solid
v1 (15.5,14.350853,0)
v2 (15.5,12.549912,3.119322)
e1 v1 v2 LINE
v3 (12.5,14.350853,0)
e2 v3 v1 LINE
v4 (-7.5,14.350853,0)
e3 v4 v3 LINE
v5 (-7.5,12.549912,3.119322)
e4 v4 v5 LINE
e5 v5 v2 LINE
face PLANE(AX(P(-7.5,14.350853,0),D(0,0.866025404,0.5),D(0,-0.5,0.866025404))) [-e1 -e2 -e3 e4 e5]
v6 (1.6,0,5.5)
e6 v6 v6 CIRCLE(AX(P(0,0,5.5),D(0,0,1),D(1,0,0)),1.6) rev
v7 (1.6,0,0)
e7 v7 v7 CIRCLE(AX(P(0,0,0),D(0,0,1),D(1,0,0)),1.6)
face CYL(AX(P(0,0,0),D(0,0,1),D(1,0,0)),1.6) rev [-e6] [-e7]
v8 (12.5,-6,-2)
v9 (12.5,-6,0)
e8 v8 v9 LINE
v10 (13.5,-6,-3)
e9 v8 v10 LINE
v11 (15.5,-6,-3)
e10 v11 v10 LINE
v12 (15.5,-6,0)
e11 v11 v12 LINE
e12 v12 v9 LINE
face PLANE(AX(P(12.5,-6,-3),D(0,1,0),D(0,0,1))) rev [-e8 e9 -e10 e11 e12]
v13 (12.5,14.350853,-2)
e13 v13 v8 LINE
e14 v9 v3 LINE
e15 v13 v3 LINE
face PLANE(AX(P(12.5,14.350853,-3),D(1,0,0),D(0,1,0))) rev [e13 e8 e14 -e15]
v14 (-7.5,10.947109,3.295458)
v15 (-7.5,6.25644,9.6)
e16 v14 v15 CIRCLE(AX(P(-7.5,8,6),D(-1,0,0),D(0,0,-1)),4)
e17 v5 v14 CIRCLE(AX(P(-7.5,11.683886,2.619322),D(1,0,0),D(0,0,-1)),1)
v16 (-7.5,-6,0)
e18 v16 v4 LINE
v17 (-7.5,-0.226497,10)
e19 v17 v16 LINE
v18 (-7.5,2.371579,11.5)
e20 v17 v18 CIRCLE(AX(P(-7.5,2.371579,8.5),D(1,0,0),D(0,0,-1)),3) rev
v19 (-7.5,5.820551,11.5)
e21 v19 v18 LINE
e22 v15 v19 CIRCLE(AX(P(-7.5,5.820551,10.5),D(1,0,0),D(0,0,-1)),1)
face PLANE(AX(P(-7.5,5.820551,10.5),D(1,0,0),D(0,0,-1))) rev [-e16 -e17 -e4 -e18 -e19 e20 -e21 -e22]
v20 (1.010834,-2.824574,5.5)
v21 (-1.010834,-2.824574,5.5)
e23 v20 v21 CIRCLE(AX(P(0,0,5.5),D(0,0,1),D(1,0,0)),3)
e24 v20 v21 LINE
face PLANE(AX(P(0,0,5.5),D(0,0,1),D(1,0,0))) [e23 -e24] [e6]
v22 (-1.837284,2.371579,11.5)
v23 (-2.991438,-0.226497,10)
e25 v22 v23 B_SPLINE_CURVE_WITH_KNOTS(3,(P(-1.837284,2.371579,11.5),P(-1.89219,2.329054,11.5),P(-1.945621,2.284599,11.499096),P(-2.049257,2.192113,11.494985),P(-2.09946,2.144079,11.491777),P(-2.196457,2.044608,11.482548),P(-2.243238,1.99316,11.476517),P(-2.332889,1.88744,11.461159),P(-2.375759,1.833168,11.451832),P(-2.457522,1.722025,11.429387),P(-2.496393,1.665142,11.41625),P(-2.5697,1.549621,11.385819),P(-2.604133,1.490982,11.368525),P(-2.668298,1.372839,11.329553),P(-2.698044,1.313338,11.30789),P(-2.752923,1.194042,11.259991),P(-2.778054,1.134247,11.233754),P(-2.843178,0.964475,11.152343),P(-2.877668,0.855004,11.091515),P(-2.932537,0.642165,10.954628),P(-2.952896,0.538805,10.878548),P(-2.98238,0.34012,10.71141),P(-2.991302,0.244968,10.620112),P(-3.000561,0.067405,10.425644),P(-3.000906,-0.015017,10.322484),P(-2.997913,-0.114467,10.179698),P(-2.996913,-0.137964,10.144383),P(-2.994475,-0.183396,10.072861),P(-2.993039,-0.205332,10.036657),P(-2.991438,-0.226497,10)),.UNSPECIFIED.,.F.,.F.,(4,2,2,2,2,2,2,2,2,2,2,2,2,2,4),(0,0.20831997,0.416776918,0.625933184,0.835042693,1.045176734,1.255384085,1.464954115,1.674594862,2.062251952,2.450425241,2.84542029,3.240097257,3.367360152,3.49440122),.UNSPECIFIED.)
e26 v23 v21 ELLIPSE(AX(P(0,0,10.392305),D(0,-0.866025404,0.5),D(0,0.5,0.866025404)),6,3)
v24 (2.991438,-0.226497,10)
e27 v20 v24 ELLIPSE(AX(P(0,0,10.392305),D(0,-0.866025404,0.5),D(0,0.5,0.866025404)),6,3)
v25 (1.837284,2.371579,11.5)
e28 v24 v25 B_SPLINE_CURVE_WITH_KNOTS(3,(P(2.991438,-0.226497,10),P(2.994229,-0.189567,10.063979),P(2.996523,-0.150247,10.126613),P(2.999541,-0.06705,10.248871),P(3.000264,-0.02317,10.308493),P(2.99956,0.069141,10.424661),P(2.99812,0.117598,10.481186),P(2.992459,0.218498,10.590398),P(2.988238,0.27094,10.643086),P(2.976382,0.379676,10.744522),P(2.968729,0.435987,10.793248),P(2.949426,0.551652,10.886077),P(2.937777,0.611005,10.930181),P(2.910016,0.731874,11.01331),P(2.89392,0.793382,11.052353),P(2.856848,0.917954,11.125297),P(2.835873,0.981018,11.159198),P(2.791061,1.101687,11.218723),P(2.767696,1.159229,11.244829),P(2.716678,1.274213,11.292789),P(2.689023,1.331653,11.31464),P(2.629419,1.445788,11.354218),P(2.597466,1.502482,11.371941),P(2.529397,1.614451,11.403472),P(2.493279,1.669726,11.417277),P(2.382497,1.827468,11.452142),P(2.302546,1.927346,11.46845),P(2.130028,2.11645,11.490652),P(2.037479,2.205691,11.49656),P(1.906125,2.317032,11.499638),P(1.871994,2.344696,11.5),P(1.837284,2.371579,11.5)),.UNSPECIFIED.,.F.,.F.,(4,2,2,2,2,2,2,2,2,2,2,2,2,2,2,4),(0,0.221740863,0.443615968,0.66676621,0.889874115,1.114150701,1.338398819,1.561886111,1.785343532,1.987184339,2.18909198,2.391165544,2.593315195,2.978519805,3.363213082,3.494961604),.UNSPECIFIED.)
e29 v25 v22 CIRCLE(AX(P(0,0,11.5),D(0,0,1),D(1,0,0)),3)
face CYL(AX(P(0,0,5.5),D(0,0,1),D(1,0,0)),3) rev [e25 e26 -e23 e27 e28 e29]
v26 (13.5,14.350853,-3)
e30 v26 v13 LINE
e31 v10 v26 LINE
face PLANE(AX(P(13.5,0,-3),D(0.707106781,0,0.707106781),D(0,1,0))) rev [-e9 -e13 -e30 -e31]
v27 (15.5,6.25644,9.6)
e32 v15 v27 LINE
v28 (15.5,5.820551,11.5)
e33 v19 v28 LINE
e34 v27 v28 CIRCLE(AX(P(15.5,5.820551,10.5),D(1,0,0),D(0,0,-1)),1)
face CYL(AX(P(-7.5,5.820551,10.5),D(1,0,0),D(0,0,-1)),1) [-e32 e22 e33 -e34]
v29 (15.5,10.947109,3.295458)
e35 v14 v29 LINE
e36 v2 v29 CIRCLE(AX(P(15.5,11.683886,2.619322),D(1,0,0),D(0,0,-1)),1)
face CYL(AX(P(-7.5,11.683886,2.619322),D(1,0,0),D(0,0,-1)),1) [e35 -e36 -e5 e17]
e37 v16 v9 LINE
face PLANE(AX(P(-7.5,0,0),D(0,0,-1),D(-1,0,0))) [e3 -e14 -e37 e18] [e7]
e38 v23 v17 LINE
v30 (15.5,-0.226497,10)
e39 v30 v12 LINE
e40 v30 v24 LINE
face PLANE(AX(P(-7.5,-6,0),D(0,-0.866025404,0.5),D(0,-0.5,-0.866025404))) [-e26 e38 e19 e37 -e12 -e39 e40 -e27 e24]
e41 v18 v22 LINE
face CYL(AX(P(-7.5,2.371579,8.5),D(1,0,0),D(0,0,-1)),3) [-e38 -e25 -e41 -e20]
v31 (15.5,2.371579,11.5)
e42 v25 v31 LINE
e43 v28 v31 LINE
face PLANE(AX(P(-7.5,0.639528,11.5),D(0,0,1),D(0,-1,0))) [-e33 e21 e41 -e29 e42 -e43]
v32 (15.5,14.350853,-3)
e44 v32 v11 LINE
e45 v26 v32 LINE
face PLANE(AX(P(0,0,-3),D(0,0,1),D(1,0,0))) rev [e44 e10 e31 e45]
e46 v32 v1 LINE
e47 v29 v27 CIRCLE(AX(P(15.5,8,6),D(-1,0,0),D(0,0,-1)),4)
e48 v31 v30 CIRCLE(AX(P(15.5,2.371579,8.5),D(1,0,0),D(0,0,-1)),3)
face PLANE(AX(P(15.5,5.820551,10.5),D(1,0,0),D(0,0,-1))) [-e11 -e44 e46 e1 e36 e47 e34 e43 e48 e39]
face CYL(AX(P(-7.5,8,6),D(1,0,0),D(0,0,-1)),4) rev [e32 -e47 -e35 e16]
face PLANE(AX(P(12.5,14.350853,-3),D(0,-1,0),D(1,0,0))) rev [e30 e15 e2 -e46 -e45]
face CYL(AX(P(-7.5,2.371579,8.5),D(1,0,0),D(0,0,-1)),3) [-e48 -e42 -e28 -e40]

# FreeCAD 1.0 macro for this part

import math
import FreeCAD as App
import Part
import Sketcher
Q = App.Units.Quantity


def edges_at(feature, points):
    """Names of the edges that pass closest to the given points."""
    edges = feature.Shape.Edges
    near = lambda p: min(range(len(edges)), key=lambda i: edges[i].distToShape(Part.Vertex(*p))[0])
    return sorted({f"Edge{near(p) + 1}" for p in points})


def add_polygon(sketch, points):
    """Adds a closed chain of lines whose ends are joined by coincident constraints."""
    first, n = sketch.GeometryCount, len(points)
    for a, b in zip(points, points[1:] + points[:1]):
        sketch.addGeometry(Part.LineSegment(App.Vector(*a, 0), App.Vector(*b, 0)), False)
    for i in range(n):
        sketch.addConstraint(Sketcher.Constraint("Coincident", first + i, 2, first + (i + 1) % n, 1))

doc = App.newDocument("Part")
body = doc.addObject("PartDesign::Body", "Body")

# Sketch on YZ plane
sketch1 = doc.addObject("Sketcher::SketchObject", "Sketch")
body.addObject(sketch1)
sketch1.AttachmentSupport = (doc.YZ_Plane, [""])
sketch1.MapMode = "FlatFace"
sketch1.addGeometry([
    Part.LineSegment(App.Vector(14.4, 0, 0), App.Vector(12.5, 3.1, 0)),  # 0
    Part.ArcOfCircle(Part.Circle(App.Vector(11.7, 2.6, 0), App.Vector(0, 0, 1), 1), math.radians(30), math.radians(137)),  # 1
    Part.ArcOfCircle(Part.Circle(App.Vector(8, 6, 0), App.Vector(0, 0, 1), 4), math.radians(116), math.radians(317)),  # 2
    Part.ArcOfCircle(Part.Circle(App.Vector(5.8, 10.5, 0), App.Vector(0, 0, 1), 1), math.radians(-64), math.radians(90)),  # 3
    Part.LineSegment(App.Vector(5.8, 11.5, 0), App.Vector(0.6, 11.5, 0)),  # 4
    Part.LineSegment(App.Vector(0.6, 11.5, 0), App.Vector(-6, 0, 0)),  # 5
    Part.LineSegment(App.Vector(-6, 0, 0), App.Vector(14.4, 0, 0)),  # 6
], False)
sketch1.addConstraint([
    Sketcher.Constraint("Tangent", 0, 2, 1, 1),
    Sketcher.Constraint("Tangent", 1, 2, 2, 2),
    Sketcher.Constraint("Tangent", 2, 1, 3, 1),
    Sketcher.Constraint("Tangent", 3, 2, 4, 1),
    Sketcher.Constraint("Coincident", 4, 2, 5, 1),
    Sketcher.Constraint("Coincident", 5, 2, 6, 1),
    Sketcher.Constraint("Coincident", 6, 2, 0, 1),
    Sketcher.Constraint("Horizontal", 4),
    Sketcher.Constraint("Horizontal", 6),
    Sketcher.Constraint("Equal", 1, 3),
    Sketcher.Constraint("PointOnObject", 5, 2, -1),
    Sketcher.Constraint("Radius", 1, 1.0),
    Sketcher.Constraint("Radius", 2, 4.0),
    Sketcher.Constraint("Angle", 0, Q("120 deg")),
    Sketcher.Constraint("Angle", 5, Q("-120 deg")),
    Sketcher.Constraint("DistanceX", -1, 1, 2, 3, 8.0),
    Sketcher.Constraint("DistanceY", -1, 1, 2, 3, 6.0),
    Sketcher.Constraint("DistanceX", 5, 2, -1, 1, 6.0),
    Sketcher.Constraint("DistanceY", -1, 1, 3, 3, 10.5),
    Sketcher.Constraint("DistanceX", 6, 1, 6, 2, 20.350853),
])
pad1 = doc.addObject("PartDesign::Pad", "Pad")
body.addObject(pad1)
pad1.Profile = sketch1
pad1.Type = "TwoLengths"
pad1.Length = 15.5
pad1.Length2 = 7.5

# Sketch on XY plane
sketch2 = doc.addObject("Sketcher::SketchObject", "Sketch001")
body.addObject(sketch2)
sketch2.AttachmentSupport = (doc.XY_Plane, [""])
sketch2.MapMode = "FlatFace"
sketch2.AttachmentOffset = App.Placement(App.Vector(0, 0, 11.5), App.Rotation())
sketch2.addGeometry(Part.Circle(App.Vector(0, 0, 0), App.Vector(0, 0, 1), 1.6), False)
sketch2.addConstraint([
    Sketcher.Constraint("Coincident", 0, 3, -1, 1),
    Sketcher.Constraint("Diameter", 0, 3.2),
])
pocket1 = doc.addObject("PartDesign::Pocket", "Pocket")
body.addObject(pocket1)
pocket1.Profile = sketch2
pocket1.Type = "ThroughAll"

# Sketch on XY plane
sketch3 = doc.addObject("Sketcher::SketchObject", "Sketch002")
body.addObject(sketch3)
sketch3.AttachmentSupport = (doc.XY_Plane, [""])
sketch3.MapMode = "FlatFace"
sketch3.AttachmentOffset = App.Placement(App.Vector(0, 0, 11.5), App.Rotation())
sketch3.addGeometry(Part.Circle(App.Vector(0, 0, 0), App.Vector(0, 0, 1), 3), False)
sketch3.addConstraint([
    Sketcher.Constraint("Coincident", 0, 3, -1, 1),
    Sketcher.Constraint("Diameter", 0, 6.0),
])
pocket2 = doc.addObject("PartDesign::Pocket", "Pocket001")
body.addObject(pocket2)
pocket2.Profile = sketch3
pocket2.Length = 6

# Sketch on XY plane
sketch4 = doc.addObject("Sketcher::SketchObject", "Sketch003")
body.addObject(sketch4)
sketch4.AttachmentSupport = (doc.XY_Plane, [""])
sketch4.MapMode = "FlatFace"
add_polygon(sketch4, [(15.5, 14.4), (15.5, -6), (12.5, -6), (12.5, 14.4)])  # lines 0-3
sketch4.addConstraint([
    Sketcher.Constraint("Vertical", 0),
    Sketcher.Constraint("Horizontal", 1),
    Sketcher.Constraint("Vertical", 2),
    Sketcher.Constraint("Horizontal", 3),
    Sketcher.Constraint("DistanceX", 1, 2, 1, 1, 3.0),
    Sketcher.Constraint("DistanceY", 0, 2, -1, 1, 6.0),
    Sketcher.Constraint("DistanceX", -1, 1, 0, 2, 15.5),
    Sketcher.Constraint("DistanceY", 0, 2, 0, 1, 20.350853),
])
pad2 = doc.addObject("PartDesign::Pad", "Pad001")
body.addObject(pad2)
pad2.Profile = sketch4
pad2.Length = 3
pad2.Reversed = True
doc.recompute()

fillet = doc.addObject("PartDesign::Fillet", "Fillet")
body.addObject(fillet)
fillet.Base = (pad2, edges_at(pad2, [(9.216, 0.64, 11.5), (-5.216, 0.64, 11.5)]))
fillet.Radius = 3
doc.recompute()

chamfer = doc.addObject("PartDesign::Chamfer", "Chamfer")
body.addObject(chamfer)
chamfer.Base = (fillet, edges_at(fillet, [(12.5, 4.175, -3)]))
chamfer.Size = 1

doc.recompute()
